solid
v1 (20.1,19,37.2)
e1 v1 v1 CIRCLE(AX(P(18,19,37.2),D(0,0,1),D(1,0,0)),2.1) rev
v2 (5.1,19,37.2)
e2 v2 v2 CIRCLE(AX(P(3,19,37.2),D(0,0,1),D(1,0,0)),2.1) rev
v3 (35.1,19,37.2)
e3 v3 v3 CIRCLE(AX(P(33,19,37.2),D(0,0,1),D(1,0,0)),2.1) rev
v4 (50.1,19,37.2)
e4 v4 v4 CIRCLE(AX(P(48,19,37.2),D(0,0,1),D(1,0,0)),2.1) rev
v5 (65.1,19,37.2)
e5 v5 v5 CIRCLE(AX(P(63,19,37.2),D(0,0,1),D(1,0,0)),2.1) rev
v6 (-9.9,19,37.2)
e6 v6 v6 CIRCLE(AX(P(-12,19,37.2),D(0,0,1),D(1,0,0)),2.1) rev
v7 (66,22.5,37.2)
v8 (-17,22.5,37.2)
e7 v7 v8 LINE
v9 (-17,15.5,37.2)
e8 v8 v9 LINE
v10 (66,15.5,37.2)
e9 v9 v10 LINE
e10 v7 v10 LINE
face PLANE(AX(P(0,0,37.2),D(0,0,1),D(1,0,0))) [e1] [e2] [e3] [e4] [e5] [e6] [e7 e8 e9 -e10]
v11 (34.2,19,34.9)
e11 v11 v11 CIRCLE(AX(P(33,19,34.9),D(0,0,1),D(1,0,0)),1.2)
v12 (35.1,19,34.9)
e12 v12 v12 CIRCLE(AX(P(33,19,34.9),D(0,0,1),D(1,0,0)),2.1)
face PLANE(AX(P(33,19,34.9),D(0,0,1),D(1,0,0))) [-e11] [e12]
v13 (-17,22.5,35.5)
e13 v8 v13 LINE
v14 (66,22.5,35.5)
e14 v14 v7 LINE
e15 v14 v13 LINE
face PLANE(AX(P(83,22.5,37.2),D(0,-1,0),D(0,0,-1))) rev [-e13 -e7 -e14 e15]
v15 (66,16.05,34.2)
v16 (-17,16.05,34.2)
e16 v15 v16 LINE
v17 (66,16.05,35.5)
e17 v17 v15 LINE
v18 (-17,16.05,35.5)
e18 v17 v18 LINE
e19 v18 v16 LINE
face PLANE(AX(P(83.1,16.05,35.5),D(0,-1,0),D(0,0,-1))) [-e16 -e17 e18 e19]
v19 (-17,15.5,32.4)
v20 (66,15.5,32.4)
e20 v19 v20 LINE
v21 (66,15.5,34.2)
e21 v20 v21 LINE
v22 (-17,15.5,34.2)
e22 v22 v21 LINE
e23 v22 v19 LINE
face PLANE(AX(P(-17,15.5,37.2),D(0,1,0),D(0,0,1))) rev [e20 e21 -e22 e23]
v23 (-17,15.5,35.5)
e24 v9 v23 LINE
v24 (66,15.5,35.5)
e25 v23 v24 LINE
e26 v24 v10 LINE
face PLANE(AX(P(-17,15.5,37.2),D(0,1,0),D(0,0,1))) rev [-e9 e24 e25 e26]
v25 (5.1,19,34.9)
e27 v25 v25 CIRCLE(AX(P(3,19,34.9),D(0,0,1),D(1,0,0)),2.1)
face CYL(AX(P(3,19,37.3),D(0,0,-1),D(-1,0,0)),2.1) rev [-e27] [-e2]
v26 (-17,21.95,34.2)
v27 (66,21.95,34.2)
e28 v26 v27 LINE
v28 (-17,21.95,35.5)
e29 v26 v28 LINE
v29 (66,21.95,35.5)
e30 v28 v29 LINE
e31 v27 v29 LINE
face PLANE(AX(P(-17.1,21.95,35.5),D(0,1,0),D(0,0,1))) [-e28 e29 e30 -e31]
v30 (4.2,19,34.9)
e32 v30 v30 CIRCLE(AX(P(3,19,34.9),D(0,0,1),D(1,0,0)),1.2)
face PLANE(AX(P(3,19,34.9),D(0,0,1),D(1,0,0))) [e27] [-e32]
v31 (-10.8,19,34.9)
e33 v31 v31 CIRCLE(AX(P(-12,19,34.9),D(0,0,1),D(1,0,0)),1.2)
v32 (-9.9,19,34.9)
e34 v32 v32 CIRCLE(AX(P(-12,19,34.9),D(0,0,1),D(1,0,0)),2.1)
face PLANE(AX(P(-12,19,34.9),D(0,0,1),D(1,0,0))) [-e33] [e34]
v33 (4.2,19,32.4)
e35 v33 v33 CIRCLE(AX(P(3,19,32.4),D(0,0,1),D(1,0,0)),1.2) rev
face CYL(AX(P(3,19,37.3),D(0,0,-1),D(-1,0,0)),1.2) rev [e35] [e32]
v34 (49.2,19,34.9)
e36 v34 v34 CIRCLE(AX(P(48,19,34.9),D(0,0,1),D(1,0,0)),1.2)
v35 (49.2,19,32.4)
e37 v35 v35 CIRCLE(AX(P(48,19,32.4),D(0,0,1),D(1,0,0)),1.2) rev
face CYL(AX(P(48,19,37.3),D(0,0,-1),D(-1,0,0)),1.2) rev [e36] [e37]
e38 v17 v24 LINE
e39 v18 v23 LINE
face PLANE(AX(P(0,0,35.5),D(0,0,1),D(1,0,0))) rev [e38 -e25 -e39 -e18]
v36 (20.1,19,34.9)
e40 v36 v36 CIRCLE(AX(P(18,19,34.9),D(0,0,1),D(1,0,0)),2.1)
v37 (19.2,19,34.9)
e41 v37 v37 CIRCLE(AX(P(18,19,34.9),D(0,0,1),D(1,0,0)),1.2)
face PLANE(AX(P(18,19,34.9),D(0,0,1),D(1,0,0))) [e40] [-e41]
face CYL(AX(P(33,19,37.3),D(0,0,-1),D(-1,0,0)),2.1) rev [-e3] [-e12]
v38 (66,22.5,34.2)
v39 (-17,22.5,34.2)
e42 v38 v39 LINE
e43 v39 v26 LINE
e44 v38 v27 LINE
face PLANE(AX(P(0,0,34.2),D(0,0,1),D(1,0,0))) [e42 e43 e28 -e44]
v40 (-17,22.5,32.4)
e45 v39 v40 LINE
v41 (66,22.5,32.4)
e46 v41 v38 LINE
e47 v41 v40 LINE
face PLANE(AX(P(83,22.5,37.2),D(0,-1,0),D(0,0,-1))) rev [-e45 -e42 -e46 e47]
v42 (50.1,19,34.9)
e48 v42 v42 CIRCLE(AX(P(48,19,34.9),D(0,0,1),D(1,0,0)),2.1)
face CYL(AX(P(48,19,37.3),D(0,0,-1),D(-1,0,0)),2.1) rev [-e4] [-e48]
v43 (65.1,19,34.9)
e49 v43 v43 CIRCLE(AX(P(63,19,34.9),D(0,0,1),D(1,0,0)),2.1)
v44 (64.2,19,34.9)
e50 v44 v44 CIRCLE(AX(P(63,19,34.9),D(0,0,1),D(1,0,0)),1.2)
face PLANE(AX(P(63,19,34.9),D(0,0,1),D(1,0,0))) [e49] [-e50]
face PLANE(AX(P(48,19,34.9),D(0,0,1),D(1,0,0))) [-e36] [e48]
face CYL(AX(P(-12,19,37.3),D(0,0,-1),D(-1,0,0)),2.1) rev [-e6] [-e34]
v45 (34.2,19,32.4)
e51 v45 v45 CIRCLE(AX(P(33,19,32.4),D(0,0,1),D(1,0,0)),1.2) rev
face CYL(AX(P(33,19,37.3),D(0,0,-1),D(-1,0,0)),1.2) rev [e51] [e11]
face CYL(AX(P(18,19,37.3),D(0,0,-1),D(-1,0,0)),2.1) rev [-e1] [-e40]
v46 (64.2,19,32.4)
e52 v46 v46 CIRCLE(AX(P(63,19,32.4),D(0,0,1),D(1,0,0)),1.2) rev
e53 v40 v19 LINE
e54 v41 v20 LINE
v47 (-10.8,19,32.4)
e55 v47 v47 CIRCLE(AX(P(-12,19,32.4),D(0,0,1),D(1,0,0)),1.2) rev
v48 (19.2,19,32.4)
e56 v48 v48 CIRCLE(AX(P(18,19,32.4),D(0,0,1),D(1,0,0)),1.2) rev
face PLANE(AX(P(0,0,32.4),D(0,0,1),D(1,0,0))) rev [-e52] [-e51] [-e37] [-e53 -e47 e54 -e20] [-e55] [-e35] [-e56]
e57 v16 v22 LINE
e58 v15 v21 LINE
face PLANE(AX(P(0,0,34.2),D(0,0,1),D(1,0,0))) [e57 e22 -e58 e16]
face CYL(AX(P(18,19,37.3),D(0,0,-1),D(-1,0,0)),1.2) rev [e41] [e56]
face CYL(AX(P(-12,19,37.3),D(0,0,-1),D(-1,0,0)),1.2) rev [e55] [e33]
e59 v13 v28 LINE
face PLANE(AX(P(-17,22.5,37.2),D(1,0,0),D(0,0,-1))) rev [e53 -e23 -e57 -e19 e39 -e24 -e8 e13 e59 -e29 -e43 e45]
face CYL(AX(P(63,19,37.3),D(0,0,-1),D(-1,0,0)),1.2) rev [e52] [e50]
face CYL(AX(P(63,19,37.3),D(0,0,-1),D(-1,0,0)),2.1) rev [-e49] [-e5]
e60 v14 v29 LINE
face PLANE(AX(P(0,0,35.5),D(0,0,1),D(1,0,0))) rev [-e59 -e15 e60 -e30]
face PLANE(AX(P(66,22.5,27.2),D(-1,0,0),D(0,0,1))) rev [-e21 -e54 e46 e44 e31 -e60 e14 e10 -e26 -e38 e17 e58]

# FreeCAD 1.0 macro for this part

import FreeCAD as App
import Part
import Sketcher

V = App.Vector


def add_polygon(sketch, points):
    """Adds a closed chain of lines whose ends are joined by coincident constraints."""
    first, n = sketch.GeometryCount, len(points)
    for a, b in zip(points, points[1:] + points[:1]):
        sketch.addGeometry(Part.LineSegment(App.Vector(*a, 0), App.Vector(*b, 0)), False)
    for i in range(n):
        sketch.addConstraint(Sketcher.Constraint("Coincident", first + i, 2, first + (i + 1) % n, 1))

doc = App.newDocument("Part")
body = doc.addObject("PartDesign::Body", "Body")

sketch1 = body.newObject("Sketcher::SketchObject", "Sketch")
sketch1.AttachmentSupport = (doc.getObject("XY_Plane"), [""])
sketch1.MapMode = "FlatFace"
sketch1.AttachmentOffset = App.Placement(V(0, 0, 32.4), App.Rotation())
add_polygon(sketch1, [(-17, 22), (-17, 16), (83, 16), (83, 22)])
sketch1.addConstraint(Sketcher.Constraint("Vertical", 0))
sketch1.addConstraint(Sketcher.Constraint("Horizontal", 1))
sketch1.addConstraint(Sketcher.Constraint("Vertical", 2))
sketch1.addConstraint(Sketcher.Constraint("Horizontal", 3))
sketch1.addConstraint(Sketcher.Constraint("DistanceX", 1, 1, 1, 2, 100.0))
sketch1.addConstraint(Sketcher.Constraint("DistanceY", 0, 2, 0, 1, 7.0))
sketch1.addConstraint(Sketcher.Constraint("DistanceX", 0, 2, -1, 1, 17.0))
sketch1.addConstraint(Sketcher.Constraint("DistanceY", -1, 1, 0, 2, 15.5))
pad1 = body.newObject("PartDesign::Pad", "Pad")
pad1.Profile = sketch1
pad1.Length = 4.8

sketch2 = body.newObject("Sketcher::SketchObject", "Sketch001")
sketch2.AttachmentSupport = (doc.getObject("XY_Plane"), [""])
sketch2.MapMode = "FlatFace"
sketch2.AttachmentOffset = App.Placement(V(0, 0, 34.2), App.Rotation())
add_polygon(sketch2, [(-17.1, 16.1), (-17.1, 15), (83.1, 15), (83.1, 16.1)])
add_polygon(sketch2, [(-17.1, 23), (-17.1, 21.9), (83.1, 21.9), (83.1, 23)])
sketch2.addConstraint(Sketcher.Constraint("Vertical", 0))
sketch2.addConstraint(Sketcher.Constraint("Horizontal", 1))
sketch2.addConstraint(Sketcher.Constraint("Vertical", 2))
sketch2.addConstraint(Sketcher.Constraint("Horizontal", 3))
sketch2.addConstraint(Sketcher.Constraint("Vertical", 4))
sketch2.addConstraint(Sketcher.Constraint("Horizontal", 5))
sketch2.addConstraint(Sketcher.Constraint("Vertical", 6))
sketch2.addConstraint(Sketcher.Constraint("Horizontal", 7))
sketch2.addConstraint(Sketcher.Constraint("Vertical", 3, 2, 4, 2))
sketch2.addConstraint(Sketcher.Constraint("Vertical", 2, 2, 5, 2))
sketch2.addConstraint(Sketcher.Constraint("Equal", 2, 4))
sketch2.addConstraint(Sketcher.Constraint("DistanceX", 1, 1, 1, 2, 100.2))
sketch2.addConstraint(Sketcher.Constraint("DistanceY", -1, 1, 0, 2, 15.0))
sketch2.addConstraint(Sketcher.Constraint("DistanceY", -1, 1, 6, 2, 23.0))
sketch2.addConstraint(Sketcher.Constraint("DistanceY", 0, 2, 0, 1, 1.05))
sketch2.addConstraint(Sketcher.Constraint("DistanceX", 0, 2, -1, 1, 17.1))
pocket1 = body.newObject("PartDesign::Pocket", "Pocket")
pocket1.Profile = sketch2
pocket1.Length = 1.3
pocket1.Reversed = True

sketch3 = body.newObject("Sketcher::SketchObject", "Sketch002")
sketch3.AttachmentSupport = (doc.getObject("XY_Plane"), [""])
sketch3.MapMode = "FlatFace"
sketch3.AttachmentOffset = App.Placement(V(0, 0, 32.3), App.Rotation())
sketch3.addGeometry(Part.Circle(V(-12, 19, 0), V(0, 0, 1), 1.2), False)
sketch3.addGeometry(Part.Circle(V(3, 19, 0), V(0, 0, 1), 1.2), False)
sketch3.addGeometry(Part.Circle(V(18, 19, 0), V(0, 0, 1), 1.2), False)
sketch3.addGeometry(Part.Circle(V(33, 19, 0), V(0, 0, 1), 1.2), False)
sketch3.addGeometry(Part.Circle(V(48, 19, 0), V(0, 0, 1), 1.2), False)
sketch3.addGeometry(Part.Circle(V(63, 19, 0), V(0, 0, 1), 1.2), False)
sketch3.addGeometry(Part.Circle(V(78, 19, 0), V(0, 0, 1), 1.2), False)
sketch3.addConstraint(Sketcher.Constraint("Equal", 0, 1))
sketch3.addConstraint(Sketcher.Constraint("Equal", 1, 2))
sketch3.addConstraint(Sketcher.Constraint("Equal", 2, 3))
sketch3.addConstraint(Sketcher.Constraint("Equal", 3, 4))
sketch3.addConstraint(Sketcher.Constraint("Equal", 4, 5))
sketch3.addConstraint(Sketcher.Constraint("Equal", 5, 6))
sketch3.addConstraint(Sketcher.Constraint("Horizontal", 0, 3, 1, 3))
sketch3.addConstraint(Sketcher.Constraint("Horizontal", 1, 3, 2, 3))
sketch3.addConstraint(Sketcher.Constraint("Horizontal", 2, 3, 3, 3))
sketch3.addConstraint(Sketcher.Constraint("Horizontal", 3, 3, 4, 3))
sketch3.addConstraint(Sketcher.Constraint("Horizontal", 4, 3, 5, 3))
sketch3.addConstraint(Sketcher.Constraint("Horizontal", 5, 3, 6, 3))
sketch3.addConstraint(Sketcher.Constraint("Diameter", 0, 2.4))
sketch3.addConstraint(Sketcher.Constraint("DistanceX", 0, 3, -1, 1, 12.0))
sketch3.addConstraint(Sketcher.Constraint("DistanceY", -1, 1, 0, 3, 19.0))
sketch3.addConstraint(Sketcher.Constraint("DistanceX", -1, 1, 1, 3, 3.0))
sketch3.addConstraint(Sketcher.Constraint("DistanceX", -1, 1, 2, 3, 18.0))
sketch3.addConstraint(Sketcher.Constraint("DistanceX", -1, 1, 3, 3, 33.0))
sketch3.addConstraint(Sketcher.Constraint("DistanceX", -1, 1, 4, 3, 48.0))
sketch3.addConstraint(Sketcher.Constraint("DistanceX", -1, 1, 5, 3, 63.0))
sketch3.addConstraint(Sketcher.Constraint("DistanceX", -1, 1, 6, 3, 78.0))
pocket2 = body.newObject("PartDesign::Pocket", "Pocket001")
pocket2.Profile = sketch3
pocket2.Length = 5
pocket2.Reversed = True

sketch4 = body.newObject("Sketcher::SketchObject", "Sketch003")
sketch4.AttachmentSupport = (doc.getObject("XY_Plane"), [""])
sketch4.MapMode = "FlatFace"
sketch4.AttachmentOffset = App.Placement(V(0, 0, 34.9), App.Rotation())
sketch4.addGeometry(Part.Circle(V(-12, 19, 0), V(0, 0, 1), 2.1), False)
sketch4.addGeometry(Part.Circle(V(3, 19, 0), V(0, 0, 1), 2.1), False)
sketch4.addGeometry(Part.Circle(V(18, 19, 0), V(0, 0, 1), 2.1), False)
sketch4.addGeometry(Part.Circle(V(33, 19, 0), V(0, 0, 1), 2.1), False)
sketch4.addGeometry(Part.Circle(V(48, 19, 0), V(0, 0, 1), 2.1), False)
sketch4.addGeometry(Part.Circle(V(63, 19, 0), V(0, 0, 1), 2.1), False)
sketch4.addGeometry(Part.Circle(V(78, 19, 0), V(0, 0, 1), 2.1), False)
sketch4.addConstraint(Sketcher.Constraint("Equal", 0, 1))
sketch4.addConstraint(Sketcher.Constraint("Equal", 1, 2))
sketch4.addConstraint(Sketcher.Constraint("Equal", 2, 3))
sketch4.addConstraint(Sketcher.Constraint("Equal", 3, 4))
sketch4.addConstraint(Sketcher.Constraint("Equal", 4, 5))
sketch4.addConstraint(Sketcher.Constraint("Equal", 5, 6))
sketch4.addConstraint(Sketcher.Constraint("Horizontal", 0, 3, 1, 3))
sketch4.addConstraint(Sketcher.Constraint("Horizontal", 1, 3, 2, 3))
sketch4.addConstraint(Sketcher.Constraint("Horizontal", 2, 3, 3, 3))
sketch4.addConstraint(Sketcher.Constraint("Horizontal", 3, 3, 4, 3))
sketch4.addConstraint(Sketcher.Constraint("Horizontal", 4, 3, 5, 3))
sketch4.addConstraint(Sketcher.Constraint("Horizontal", 5, 3, 6, 3))
sketch4.addConstraint(Sketcher.Constraint("Diameter", 0, 4.2))
sketch4.addConstraint(Sketcher.Constraint("DistanceX", 0, 3, -1, 1, 12.0))
sketch4.addConstraint(Sketcher.Constraint("DistanceY", -1, 1, 0, 3, 19.0))
sketch4.addConstraint(Sketcher.Constraint("DistanceX", -1, 1, 1, 3, 3.0))
sketch4.addConstraint(Sketcher.Constraint("DistanceX", -1, 1, 2, 3, 18.0))
sketch4.addConstraint(Sketcher.Constraint("DistanceX", -1, 1, 3, 3, 33.0))
sketch4.addConstraint(Sketcher.Constraint("DistanceX", -1, 1, 4, 3, 48.0))
sketch4.addConstraint(Sketcher.Constraint("DistanceX", -1, 1, 5, 3, 63.0))
sketch4.addConstraint(Sketcher.Constraint("DistanceX", -1, 1, 6, 3, 78.0))
pocket3 = body.newObject("PartDesign::Pocket", "Pocket002")
pocket3.Profile = sketch4
pocket3.Length = 2.4
pocket3.Reversed = True

sketch5 = body.newObject("Sketcher::SketchObject", "Sketch004")
sketch5.AttachmentSupport = (doc.getObject("XY_Plane"), [""])
sketch5.MapMode = "FlatFace"
sketch5.AttachmentOffset = App.Placement(V(0, 0, 37.2), App.Rotation())
add_polygon(sketch5, [(66, 22), (66, 16), (83, 16), (83, 22)])
sketch5.addConstraint(Sketcher.Constraint("Vertical", 0))
sketch5.addConstraint(Sketcher.Constraint("Horizontal", 1))
sketch5.addConstraint(Sketcher.Constraint("Vertical", 2))
sketch5.addConstraint(Sketcher.Constraint("Horizontal", 3))
sketch5.addConstraint(Sketcher.Constraint("DistanceX", 1, 1, 1, 2, 17.0))
sketch5.addConstraint(Sketcher.Constraint("DistanceY", 0, 2, 0, 1, 7.0))
sketch5.addConstraint(Sketcher.Constraint("DistanceX", -1, 1, 0, 2, 66.0))
sketch5.addConstraint(Sketcher.Constraint("DistanceY", -1, 1, 0, 2, 15.5))
pocket4 = body.newObject("PartDesign::Pocket", "Pocket003")
pocket4.Profile = sketch5
pocket4.Length = 10

doc.recompute()
